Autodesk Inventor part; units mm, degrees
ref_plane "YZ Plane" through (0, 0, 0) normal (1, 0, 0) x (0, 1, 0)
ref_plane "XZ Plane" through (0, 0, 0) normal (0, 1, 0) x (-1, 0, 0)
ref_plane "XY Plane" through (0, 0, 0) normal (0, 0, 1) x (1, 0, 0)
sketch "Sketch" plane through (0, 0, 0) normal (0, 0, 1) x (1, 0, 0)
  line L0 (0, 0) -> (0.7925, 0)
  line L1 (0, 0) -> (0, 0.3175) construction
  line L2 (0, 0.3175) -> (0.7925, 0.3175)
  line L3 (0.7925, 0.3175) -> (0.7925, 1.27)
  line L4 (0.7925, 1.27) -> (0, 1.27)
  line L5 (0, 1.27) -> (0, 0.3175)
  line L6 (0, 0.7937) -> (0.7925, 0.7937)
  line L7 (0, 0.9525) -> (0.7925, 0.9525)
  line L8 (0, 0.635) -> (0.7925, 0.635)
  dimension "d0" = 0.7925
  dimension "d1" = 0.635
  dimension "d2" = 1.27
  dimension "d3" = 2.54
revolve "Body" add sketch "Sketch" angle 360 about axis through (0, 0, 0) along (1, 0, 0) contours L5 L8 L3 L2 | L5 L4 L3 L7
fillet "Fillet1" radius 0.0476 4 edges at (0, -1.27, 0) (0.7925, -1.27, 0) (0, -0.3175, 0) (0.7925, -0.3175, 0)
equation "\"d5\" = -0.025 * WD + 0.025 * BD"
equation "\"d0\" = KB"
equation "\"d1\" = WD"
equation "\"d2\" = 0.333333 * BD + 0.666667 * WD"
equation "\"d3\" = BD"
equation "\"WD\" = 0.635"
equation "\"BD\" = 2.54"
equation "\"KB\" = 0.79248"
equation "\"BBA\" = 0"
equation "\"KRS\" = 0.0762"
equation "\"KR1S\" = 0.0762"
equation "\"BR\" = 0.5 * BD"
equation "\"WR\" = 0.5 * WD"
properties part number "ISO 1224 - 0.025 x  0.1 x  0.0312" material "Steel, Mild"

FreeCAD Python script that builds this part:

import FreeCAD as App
import Part
import Sketcher
Q = App.Units.Quantity


def edges_at(feature, points):
    """Names of the edges that pass closest to the given points."""
    edges = feature.Shape.Edges
    near = lambda p: min(range(len(edges)), key=lambda i: edges[i].distToShape(Part.Vertex(*p))[0])
    return sorted({f"Edge{near(p) + 1}" for p in points})


def add_polygon(sketch, points):
    """Adds a closed chain of lines whose ends are joined by coincident constraints."""
    first, n = sketch.GeometryCount, len(points)
    for a, b in zip(points, points[1:] + points[:1]):
        sketch.addGeometry(Part.LineSegment(App.Vector(*a, 0), App.Vector(*b, 0)), False)
    for i in range(n):
        sketch.addConstraint(Sketcher.Constraint("Coincident", first + i, 2, first + (i + 1) % n, 1))

doc = App.newDocument("Part")
body = doc.addObject("PartDesign::Body", "Body")
body.AllowCompound = True

# Sketch on XY plane
sketch1 = doc.addObject("Sketcher::SketchObject", "Sketch")
body.addObject(sketch1)
sketch1.AttachmentSupport = (doc.XY_Plane, [""])
sketch1.MapMode = "FlatFace"
add_polygon(sketch1, [(0, 0.635), (0, 0.3175), (0.7925, 0.3175), (0.7925, 0.635)])  # lines 0-3
add_polygon(sketch1, [(0, 1.27), (0, 0.9525), (0.7925, 0.9525), (0.7925, 1.27)])  # lines 4-7
sketch1.addConstraint([
    Sketcher.Constraint("Vertical", 0),
    Sketcher.Constraint("Horizontal", 1),
    Sketcher.Constraint("Vertical", 2),
    Sketcher.Constraint("Horizontal", 3),
    Sketcher.Constraint("Vertical", 4),
    Sketcher.Constraint("Horizontal", 5),
    Sketcher.Constraint("Vertical", 6),
    Sketcher.Constraint("Horizontal", 7),
    Sketcher.Constraint("PointOnObject", 0, 2, -2),
    Sketcher.Constraint("PointOnObject", 4, 2, -2),
    Sketcher.Constraint("Vertical", 2, 2, 5, 2),
    Sketcher.Constraint("Equal", 2, 4),
    Sketcher.Constraint("DistanceY", -1, 1, 6, 2, Q("1.27 mm")),
    Sketcher.Constraint("DistanceX", 1, 1, 1, 2, Q("0.7925 mm")),
    Sketcher.Constraint("DistanceY", -1, 1, 2, 2, Q("0.635 mm")),
    Sketcher.Constraint("DistanceY", 0, 2, 0, 1, Q("0.3175 mm")),
])
revolution = doc.addObject("PartDesign::Revolution", "Revolution")
body.addObject(revolution)
revolution.Profile = sketch1
revolution.ReferenceAxis = (sketch1, ["H_Axis"])
revolution.Angle = 360
doc.recompute()

fillet = doc.addObject("PartDesign::Fillet", "Fillet")
body.addObject(fillet)
fillet.Base = (revolution, edges_at(revolution, [
    (0, -1.27, 0),
    (0.792, -1.27, 0),
    (0, -0.318, 0),
    (0.792, -0.318, 0),
]))
fillet.Radius = 0.0476

doc.recompute()
